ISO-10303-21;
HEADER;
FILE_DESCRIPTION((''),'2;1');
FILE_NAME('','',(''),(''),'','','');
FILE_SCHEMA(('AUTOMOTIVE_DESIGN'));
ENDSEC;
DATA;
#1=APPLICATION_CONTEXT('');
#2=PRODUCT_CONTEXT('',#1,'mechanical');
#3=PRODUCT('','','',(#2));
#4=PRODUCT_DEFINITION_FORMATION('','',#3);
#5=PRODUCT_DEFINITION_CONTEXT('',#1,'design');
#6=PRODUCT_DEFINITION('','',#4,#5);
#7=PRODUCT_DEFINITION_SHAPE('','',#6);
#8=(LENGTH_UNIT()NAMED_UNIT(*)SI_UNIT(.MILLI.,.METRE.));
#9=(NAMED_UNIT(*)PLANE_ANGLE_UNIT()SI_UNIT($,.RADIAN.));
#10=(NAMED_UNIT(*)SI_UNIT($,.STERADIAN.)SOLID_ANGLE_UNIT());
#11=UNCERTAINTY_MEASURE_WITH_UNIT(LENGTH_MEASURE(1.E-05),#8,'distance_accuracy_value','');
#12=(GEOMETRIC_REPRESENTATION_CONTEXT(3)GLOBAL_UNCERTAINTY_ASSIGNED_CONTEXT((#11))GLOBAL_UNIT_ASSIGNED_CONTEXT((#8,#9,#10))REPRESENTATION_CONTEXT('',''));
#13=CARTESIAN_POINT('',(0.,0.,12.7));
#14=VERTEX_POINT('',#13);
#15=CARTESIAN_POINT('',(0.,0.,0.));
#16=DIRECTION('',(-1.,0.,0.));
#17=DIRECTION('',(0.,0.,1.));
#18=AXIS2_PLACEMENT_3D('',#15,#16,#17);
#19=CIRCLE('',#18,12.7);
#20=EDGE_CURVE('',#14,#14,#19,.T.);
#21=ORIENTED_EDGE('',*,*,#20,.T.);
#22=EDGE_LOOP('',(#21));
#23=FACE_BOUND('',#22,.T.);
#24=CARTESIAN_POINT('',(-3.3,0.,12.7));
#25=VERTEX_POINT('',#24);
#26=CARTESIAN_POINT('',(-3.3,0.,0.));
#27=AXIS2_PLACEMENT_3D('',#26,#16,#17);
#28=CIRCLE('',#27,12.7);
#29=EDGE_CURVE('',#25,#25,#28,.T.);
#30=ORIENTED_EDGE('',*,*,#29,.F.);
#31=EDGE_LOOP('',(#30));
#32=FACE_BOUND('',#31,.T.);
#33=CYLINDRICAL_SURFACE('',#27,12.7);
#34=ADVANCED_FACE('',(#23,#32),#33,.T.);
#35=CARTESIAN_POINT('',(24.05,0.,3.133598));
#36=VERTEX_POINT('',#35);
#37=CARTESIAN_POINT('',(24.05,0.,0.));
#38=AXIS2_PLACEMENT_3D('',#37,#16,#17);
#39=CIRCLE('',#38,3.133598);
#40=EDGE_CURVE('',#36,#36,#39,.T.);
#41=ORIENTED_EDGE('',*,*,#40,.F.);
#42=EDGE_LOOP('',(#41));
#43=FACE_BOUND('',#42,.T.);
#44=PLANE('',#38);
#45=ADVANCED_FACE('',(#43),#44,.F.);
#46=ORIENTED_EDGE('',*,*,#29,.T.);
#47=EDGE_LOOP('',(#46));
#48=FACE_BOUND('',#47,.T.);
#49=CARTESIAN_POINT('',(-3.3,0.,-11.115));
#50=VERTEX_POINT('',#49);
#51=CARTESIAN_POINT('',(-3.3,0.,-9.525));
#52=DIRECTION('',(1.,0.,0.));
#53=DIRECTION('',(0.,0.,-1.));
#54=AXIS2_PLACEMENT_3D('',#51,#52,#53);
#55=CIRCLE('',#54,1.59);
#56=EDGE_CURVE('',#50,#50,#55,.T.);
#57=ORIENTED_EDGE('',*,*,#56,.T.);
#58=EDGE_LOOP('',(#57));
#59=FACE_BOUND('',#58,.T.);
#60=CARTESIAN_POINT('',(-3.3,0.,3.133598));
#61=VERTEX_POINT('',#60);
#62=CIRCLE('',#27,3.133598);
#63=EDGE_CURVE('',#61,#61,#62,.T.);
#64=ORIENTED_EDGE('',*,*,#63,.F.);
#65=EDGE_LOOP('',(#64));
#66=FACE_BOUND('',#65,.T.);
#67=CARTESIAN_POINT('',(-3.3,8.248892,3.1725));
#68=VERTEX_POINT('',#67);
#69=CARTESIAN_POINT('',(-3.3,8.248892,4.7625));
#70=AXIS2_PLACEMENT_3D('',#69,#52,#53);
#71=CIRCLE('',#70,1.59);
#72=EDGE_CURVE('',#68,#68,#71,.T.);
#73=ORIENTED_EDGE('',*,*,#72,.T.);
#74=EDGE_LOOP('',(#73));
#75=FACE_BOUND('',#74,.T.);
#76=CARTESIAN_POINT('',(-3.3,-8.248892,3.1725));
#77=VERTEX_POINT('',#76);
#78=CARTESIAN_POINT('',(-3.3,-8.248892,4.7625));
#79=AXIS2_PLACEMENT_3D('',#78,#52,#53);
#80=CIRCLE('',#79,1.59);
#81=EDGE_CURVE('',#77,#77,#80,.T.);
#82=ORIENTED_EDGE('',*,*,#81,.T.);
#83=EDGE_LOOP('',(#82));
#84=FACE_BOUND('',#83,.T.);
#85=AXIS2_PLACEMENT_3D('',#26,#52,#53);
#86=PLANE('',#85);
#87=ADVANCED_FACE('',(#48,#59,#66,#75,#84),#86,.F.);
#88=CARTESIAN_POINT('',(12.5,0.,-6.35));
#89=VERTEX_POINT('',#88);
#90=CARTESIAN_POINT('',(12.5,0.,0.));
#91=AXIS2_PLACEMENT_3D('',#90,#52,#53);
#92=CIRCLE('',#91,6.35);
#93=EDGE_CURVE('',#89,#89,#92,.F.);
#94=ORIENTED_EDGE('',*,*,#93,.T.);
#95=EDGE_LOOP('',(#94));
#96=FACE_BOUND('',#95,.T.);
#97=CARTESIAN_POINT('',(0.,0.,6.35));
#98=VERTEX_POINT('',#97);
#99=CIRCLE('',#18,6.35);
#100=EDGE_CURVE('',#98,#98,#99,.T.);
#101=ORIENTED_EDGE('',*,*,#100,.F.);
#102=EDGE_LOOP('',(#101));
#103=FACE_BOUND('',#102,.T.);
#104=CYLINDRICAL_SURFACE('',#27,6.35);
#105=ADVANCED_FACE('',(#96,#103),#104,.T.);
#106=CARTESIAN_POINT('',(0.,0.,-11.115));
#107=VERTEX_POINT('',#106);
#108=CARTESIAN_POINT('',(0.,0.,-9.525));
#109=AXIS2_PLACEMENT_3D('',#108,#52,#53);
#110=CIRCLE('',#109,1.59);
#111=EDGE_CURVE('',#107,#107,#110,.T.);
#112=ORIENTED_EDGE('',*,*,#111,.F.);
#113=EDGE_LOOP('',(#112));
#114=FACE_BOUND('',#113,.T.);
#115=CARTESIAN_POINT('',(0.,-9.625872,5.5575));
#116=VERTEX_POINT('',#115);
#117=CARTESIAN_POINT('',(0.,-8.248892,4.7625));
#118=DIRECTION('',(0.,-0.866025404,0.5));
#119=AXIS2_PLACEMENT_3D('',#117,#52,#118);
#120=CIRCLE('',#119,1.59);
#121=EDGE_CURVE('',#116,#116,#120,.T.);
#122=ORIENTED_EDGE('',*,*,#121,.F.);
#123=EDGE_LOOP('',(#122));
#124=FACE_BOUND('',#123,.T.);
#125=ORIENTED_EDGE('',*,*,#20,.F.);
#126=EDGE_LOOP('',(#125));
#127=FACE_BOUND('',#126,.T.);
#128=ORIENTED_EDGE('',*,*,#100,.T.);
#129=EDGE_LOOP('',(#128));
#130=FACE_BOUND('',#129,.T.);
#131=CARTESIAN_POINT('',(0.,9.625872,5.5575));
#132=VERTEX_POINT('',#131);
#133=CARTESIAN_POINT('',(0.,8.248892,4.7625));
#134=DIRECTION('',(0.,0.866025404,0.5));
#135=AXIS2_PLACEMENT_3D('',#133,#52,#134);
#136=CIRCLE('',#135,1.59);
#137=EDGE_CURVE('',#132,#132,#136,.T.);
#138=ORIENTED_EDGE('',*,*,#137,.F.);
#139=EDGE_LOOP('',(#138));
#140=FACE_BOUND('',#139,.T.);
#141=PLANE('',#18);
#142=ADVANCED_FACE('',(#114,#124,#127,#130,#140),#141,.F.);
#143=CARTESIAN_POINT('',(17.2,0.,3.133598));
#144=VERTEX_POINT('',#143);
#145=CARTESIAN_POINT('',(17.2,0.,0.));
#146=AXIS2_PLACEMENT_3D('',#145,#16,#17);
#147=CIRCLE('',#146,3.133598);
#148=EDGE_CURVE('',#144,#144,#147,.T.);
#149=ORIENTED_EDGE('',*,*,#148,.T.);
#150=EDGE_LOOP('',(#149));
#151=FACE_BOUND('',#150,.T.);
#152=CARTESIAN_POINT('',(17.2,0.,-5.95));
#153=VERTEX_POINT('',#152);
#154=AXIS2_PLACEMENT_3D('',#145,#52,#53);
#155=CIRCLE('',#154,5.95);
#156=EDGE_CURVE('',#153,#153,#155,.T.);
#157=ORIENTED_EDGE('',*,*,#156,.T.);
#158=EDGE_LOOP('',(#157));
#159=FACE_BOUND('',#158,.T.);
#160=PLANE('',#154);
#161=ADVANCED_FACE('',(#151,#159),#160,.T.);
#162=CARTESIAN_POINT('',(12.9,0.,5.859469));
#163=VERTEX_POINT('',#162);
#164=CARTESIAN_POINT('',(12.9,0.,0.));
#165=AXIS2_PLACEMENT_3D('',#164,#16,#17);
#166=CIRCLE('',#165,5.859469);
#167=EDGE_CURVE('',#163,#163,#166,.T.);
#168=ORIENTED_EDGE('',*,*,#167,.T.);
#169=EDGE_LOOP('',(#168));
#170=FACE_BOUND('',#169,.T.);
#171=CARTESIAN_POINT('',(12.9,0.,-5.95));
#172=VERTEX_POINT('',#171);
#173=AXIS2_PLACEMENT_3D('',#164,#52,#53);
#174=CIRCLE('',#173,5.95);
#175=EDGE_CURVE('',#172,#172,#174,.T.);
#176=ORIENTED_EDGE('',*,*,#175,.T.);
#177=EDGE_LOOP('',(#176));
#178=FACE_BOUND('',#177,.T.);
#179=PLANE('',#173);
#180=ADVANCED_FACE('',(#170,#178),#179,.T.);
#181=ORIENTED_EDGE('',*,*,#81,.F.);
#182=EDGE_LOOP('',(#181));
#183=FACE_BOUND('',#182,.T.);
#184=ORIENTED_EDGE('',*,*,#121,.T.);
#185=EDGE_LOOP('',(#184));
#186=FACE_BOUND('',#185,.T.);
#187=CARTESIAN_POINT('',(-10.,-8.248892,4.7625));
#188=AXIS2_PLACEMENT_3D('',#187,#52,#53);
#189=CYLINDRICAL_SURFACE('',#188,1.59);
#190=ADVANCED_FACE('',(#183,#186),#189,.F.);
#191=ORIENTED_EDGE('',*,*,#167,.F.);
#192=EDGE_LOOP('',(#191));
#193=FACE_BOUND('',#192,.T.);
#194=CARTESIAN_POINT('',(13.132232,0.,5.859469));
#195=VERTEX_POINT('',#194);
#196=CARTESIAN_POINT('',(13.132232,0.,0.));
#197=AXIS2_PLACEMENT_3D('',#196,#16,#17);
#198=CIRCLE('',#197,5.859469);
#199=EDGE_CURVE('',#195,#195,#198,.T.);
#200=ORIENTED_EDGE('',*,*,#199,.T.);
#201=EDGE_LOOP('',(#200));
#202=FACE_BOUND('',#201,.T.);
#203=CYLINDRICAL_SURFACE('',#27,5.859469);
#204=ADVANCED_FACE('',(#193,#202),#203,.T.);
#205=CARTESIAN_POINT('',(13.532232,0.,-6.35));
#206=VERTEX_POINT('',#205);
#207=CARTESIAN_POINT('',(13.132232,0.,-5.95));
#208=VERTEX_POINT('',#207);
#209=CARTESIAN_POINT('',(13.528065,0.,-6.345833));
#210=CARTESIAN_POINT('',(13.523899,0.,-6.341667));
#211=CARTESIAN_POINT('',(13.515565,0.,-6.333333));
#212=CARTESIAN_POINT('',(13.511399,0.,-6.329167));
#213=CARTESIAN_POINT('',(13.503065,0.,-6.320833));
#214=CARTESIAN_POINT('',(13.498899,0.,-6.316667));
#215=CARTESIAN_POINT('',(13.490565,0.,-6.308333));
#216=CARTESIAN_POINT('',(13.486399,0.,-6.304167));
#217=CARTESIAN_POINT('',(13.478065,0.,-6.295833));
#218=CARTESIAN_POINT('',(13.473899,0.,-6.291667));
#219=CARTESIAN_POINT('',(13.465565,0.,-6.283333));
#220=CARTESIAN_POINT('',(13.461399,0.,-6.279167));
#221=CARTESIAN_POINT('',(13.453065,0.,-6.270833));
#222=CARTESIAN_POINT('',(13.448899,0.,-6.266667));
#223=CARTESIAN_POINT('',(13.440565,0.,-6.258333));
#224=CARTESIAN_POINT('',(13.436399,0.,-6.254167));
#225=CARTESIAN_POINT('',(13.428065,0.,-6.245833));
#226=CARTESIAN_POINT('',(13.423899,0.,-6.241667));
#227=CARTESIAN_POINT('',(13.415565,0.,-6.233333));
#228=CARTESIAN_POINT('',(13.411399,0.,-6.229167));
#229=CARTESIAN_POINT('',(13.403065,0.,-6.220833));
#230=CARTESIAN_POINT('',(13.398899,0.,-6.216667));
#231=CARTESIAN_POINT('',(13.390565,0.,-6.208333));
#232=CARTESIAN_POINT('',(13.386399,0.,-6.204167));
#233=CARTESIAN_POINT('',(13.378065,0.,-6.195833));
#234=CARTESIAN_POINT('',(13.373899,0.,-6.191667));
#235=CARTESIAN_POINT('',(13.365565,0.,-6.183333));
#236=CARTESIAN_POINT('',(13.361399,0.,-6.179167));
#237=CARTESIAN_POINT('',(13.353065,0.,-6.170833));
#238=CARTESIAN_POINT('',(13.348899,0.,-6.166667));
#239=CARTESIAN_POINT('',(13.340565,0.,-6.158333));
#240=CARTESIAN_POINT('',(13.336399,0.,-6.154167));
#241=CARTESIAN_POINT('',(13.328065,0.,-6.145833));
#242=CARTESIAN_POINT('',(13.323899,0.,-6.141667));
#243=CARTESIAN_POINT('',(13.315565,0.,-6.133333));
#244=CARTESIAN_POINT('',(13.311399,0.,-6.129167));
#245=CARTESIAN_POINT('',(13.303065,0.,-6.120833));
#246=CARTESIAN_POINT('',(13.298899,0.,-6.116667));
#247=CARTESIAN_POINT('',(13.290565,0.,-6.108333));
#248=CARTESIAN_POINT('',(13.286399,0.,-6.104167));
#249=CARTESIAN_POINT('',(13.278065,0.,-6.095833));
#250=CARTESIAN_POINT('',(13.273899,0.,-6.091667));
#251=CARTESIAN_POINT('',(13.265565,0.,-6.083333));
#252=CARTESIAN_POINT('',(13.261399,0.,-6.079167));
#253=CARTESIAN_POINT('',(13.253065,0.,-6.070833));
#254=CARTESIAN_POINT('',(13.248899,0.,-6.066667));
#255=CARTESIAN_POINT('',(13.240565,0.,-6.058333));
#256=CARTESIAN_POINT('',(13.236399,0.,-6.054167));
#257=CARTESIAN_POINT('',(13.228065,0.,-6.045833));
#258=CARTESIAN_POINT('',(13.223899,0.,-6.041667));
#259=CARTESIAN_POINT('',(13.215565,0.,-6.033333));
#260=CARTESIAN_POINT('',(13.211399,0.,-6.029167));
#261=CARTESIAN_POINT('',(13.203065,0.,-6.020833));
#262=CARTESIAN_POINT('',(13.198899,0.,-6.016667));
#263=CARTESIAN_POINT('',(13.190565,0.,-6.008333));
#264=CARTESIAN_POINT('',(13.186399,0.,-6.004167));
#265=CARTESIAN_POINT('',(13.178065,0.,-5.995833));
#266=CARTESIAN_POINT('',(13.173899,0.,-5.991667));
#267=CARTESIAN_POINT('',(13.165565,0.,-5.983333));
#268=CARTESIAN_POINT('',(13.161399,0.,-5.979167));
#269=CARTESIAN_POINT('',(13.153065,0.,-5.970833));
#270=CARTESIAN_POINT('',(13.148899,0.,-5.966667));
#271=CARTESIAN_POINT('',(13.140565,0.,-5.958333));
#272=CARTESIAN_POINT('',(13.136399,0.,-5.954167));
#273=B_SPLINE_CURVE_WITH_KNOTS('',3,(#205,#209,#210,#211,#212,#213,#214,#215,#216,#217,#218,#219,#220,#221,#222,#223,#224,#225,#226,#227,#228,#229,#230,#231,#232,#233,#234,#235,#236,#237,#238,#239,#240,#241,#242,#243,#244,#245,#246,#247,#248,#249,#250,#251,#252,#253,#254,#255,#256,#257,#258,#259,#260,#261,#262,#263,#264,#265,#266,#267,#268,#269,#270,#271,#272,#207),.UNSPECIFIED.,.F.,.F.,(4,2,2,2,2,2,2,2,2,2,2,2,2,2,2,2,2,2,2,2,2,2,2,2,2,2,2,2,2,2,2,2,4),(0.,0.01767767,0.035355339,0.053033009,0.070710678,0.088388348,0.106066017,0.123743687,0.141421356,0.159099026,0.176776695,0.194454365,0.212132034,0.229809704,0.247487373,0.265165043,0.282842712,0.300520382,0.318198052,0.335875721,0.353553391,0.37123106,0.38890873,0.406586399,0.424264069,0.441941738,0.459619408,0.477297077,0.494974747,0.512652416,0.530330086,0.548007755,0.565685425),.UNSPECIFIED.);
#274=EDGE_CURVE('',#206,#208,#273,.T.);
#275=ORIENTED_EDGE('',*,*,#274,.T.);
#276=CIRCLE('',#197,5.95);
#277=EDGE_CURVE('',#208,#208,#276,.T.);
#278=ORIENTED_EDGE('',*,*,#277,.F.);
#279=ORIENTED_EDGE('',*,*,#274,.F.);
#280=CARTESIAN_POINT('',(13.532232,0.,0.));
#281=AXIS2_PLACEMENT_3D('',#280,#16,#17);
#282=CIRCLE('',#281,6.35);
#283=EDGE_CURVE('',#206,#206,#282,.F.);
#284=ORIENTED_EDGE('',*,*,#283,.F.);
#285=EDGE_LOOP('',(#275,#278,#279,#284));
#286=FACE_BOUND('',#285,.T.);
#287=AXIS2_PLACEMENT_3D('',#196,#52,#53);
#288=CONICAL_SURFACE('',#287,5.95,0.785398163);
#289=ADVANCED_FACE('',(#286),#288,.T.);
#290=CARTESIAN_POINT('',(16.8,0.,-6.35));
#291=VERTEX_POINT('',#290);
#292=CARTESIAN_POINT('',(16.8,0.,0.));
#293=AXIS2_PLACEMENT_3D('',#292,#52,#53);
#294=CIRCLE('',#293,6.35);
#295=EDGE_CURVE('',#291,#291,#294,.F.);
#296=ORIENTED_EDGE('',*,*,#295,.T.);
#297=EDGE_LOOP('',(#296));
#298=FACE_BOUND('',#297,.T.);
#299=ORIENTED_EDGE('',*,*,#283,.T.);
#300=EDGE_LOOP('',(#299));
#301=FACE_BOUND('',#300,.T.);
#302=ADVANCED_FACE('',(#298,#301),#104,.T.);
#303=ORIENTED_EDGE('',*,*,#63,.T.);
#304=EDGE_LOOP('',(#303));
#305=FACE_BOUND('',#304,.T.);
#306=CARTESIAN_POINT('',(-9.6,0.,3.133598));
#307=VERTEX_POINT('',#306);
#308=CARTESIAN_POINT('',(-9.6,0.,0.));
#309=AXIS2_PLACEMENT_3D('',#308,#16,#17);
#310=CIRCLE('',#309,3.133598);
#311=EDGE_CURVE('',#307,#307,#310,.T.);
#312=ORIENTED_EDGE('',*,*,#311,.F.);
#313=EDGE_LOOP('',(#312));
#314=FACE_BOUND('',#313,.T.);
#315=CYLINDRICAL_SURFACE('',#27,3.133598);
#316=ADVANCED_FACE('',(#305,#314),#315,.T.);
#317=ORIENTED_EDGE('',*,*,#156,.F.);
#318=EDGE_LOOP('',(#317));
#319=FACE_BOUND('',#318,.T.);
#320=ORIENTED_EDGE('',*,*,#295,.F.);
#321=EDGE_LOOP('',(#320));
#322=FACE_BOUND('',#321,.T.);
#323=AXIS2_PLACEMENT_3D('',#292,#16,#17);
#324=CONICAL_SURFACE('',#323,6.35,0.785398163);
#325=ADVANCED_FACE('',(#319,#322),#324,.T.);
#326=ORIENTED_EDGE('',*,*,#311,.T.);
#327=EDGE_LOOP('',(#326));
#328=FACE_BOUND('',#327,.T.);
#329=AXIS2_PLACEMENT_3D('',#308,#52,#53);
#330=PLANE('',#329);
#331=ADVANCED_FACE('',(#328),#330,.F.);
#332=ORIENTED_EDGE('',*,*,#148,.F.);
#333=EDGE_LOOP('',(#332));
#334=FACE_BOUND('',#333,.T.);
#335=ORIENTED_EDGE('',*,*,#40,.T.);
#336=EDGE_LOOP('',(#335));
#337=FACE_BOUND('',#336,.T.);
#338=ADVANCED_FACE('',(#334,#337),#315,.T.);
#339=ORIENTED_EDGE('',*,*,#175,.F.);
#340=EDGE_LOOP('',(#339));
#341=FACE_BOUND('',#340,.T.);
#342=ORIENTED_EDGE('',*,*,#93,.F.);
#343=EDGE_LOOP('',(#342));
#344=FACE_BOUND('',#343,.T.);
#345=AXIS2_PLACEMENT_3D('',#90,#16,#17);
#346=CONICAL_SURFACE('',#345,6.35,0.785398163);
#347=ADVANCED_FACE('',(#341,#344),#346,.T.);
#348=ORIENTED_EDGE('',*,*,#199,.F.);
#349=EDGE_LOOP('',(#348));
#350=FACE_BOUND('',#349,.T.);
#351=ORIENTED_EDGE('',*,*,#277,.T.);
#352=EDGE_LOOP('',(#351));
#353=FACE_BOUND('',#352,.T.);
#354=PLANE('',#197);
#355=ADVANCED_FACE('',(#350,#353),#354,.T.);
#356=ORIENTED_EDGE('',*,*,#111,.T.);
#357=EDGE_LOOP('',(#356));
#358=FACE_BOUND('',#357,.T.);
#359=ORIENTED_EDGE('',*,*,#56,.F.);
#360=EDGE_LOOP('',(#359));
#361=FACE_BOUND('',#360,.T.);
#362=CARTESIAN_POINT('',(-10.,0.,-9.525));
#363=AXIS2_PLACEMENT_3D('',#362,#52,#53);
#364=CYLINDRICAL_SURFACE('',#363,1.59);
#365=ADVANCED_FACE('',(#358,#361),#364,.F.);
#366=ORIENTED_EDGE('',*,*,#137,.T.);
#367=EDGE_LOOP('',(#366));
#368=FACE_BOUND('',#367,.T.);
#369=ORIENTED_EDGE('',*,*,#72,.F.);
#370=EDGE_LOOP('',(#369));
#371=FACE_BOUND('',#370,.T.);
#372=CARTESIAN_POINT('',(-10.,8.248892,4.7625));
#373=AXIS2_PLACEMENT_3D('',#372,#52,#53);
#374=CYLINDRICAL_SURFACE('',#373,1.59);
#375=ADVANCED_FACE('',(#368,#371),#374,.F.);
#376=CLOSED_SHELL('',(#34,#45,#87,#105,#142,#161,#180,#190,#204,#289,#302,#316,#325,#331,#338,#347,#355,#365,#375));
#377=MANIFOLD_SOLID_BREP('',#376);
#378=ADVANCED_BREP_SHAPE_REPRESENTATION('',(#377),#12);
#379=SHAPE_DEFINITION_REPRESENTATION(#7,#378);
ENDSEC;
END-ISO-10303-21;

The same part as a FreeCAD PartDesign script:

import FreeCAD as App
import Part
import Sketcher
from FreeCAD import Vector


def edges_at(feature, points):
    """Names of the edges that pass closest to the given points."""
    edges = feature.Shape.Edges
    near = lambda p: min(range(len(edges)), key=lambda i: edges[i].distToShape(Part.Vertex(*p))[0])
    return sorted({f"Edge{near(p) + 1}" for p in points})

doc = App.newDocument("Part")
body = doc.addObject("PartDesign::Body", "Body")

# Sketch on XY plane
sketch1 = doc.addObject("Sketcher::SketchObject", "Sketch")
body.addObject(sketch1)
sketch1.AttachmentSupport = (doc.XY_Plane, [""])
sketch1.MapMode = "FlatFace"
sketch1.addGeometry([
    Part.LineSegment(Vector(-9.6, 3.133598, 0), Vector(-9.6, 0, 0)),  # 0
    Part.LineSegment(Vector(-9.6, 0, 0), Vector(24.05, 0, 0)),  # 1
    Part.LineSegment(Vector(24.05, 0, 0), Vector(24.05, 3.133598, 0)),  # 2
    Part.LineSegment(Vector(24.05, 3.133598, 0), Vector(17.2, 3.133598, 0)),  # 3
    Part.LineSegment(Vector(17.2, 3.133598, 0), Vector(17.2, 6.35, 0)),  # 4
    Part.LineSegment(Vector(17.2, 6.35, 0), Vector(13.132232, 6.35, 0)),  # 5
    Part.LineSegment(Vector(13.132232, 6.35, 0), Vector(13.132232, 5.859469, 0)),  # 6
    Part.LineSegment(Vector(13.132232, 5.859469, 0), Vector(12.9, 5.859469, 0)),  # 7
    Part.LineSegment(Vector(12.9, 5.859469, 0), Vector(12.9, 6.35, 0)),  # 8
    Part.LineSegment(Vector(12.9, 6.35, 0), Vector(0, 6.35, 0)),  # 9
    Part.LineSegment(Vector(0, 6.35, 0), Vector(0, 12.7, 0)),  # 10
    Part.LineSegment(Vector(0, 12.7, 0), Vector(-3.3, 12.7, 0)),  # 11
    Part.LineSegment(Vector(-3.3, 12.7, 0), Vector(-3.3, 3.133598, 0)),  # 12
    Part.LineSegment(Vector(-3.3, 3.133598, 0), Vector(-9.6, 3.133598, 0)),  # 13
], False)
sketch1.addConstraint([
    Sketcher.Constraint("Coincident", 0, 2, 1, 1),
    Sketcher.Constraint("Coincident", 1, 2, 2, 1),
    Sketcher.Constraint("Coincident", 2, 2, 3, 1),
    Sketcher.Constraint("Coincident", 3, 2, 4, 1),
    Sketcher.Constraint("Coincident", 4, 2, 5, 1),
    Sketcher.Constraint("Coincident", 5, 2, 6, 1),
    Sketcher.Constraint("Coincident", 6, 2, 7, 1),
    Sketcher.Constraint("Coincident", 7, 2, 8, 1),
    Sketcher.Constraint("Coincident", 8, 2, 9, 1),
    Sketcher.Constraint("Coincident", 9, 2, 10, 1),
    Sketcher.Constraint("Coincident", 10, 2, 11, 1),
    Sketcher.Constraint("Coincident", 11, 2, 12, 1),
    Sketcher.Constraint("Coincident", 12, 2, 13, 1),
    Sketcher.Constraint("Coincident", 13, 2, 0, 1),
    Sketcher.Constraint("Vertical", 0),
    Sketcher.Constraint("Horizontal", 1),
    Sketcher.Constraint("Vertical", 2),
    Sketcher.Constraint("Horizontal", 3),
    Sketcher.Constraint("Vertical", 4),
    Sketcher.Constraint("Horizontal", 5),
    Sketcher.Constraint("Vertical", 6),
    Sketcher.Constraint("Horizontal", 7),
    Sketcher.Constraint("Vertical", 8),
    Sketcher.Constraint("Horizontal", 9),
    Sketcher.Constraint("Vertical", 10),
    Sketcher.Constraint("Horizontal", 11),
    Sketcher.Constraint("Vertical", 12),
    Sketcher.Constraint("Horizontal", 13),
    Sketcher.Constraint("PointOnObject", 0, 2, -1),
    Sketcher.Constraint("PointOnObject", 9, 2, -2),
    Sketcher.Constraint("Horizontal", 5, 2, 8, 2),
    Sketcher.Constraint("Horizontal", 3, 2, 12, 2),
    Sketcher.Constraint("DistanceX", 9, 2, 9, 1, 12.9),
    Sketcher.Constraint("DistanceX", 11, 2, 11, 1, 3.3),
    Sketcher.Constraint("DistanceX", 13, 2, 13, 1, 6.3),
    Sketcher.Constraint("DistanceX", 1, 1, 1, 2, 33.65),
    Sketcher.Constraint("DistanceX", 3, 2, 3, 1, 6.85),
    Sketcher.Constraint("DistanceY", 10, 1, 10, 2, 6.35),
    Sketcher.Constraint("DistanceY", -1, 1, 10, 2, 12.7),
    Sketcher.Constraint("DistanceX", 5, 2, 5, 1, 4.067768),
    Sketcher.Constraint("DistanceY", 6, 2, 6, 1, 0.490531),
    Sketcher.Constraint("DistanceY", 0, 2, 0, 1, 3.133598),
])
revolution = doc.addObject("PartDesign::Revolution", "Revolution")
body.addObject(revolution)
revolution.Profile = sketch1
revolution.ReferenceAxis = (sketch1, ["H_Axis"])
revolution.Angle = 360

# Sketch on YZ plane
sketch2 = doc.addObject("Sketcher::SketchObject", "Sketch001")
body.addObject(sketch2)
sketch2.AttachmentSupport = (doc.YZ_Plane, [""])
sketch2.MapMode = "FlatFace"
sketch2.addGeometry(Part.Circle(Vector(0, -9.525, 0), Vector(0, 0, 1), 1.59), False)
sketch2.addConstraint([
    Sketcher.Constraint("PointOnObject", 0, 3, -2),
    Sketcher.Constraint("Diameter", 0, 3.18),
    Sketcher.Constraint("DistanceY", 0, 3, -1, 1, 9.525),
])
pocket1 = doc.addObject("PartDesign::Pocket", "Pocket")
body.addObject(pocket1)
pocket1.Profile = sketch2
pocket1.Length = 10
doc.recompute()

polarpattern = doc.addObject("PartDesign::PolarPattern", "PolarPattern")
body.addObject(polarpattern)
polarpattern.Originals = [pocket1]
polarpattern.Axis = (doc.X_Axis, [""])
polarpattern.Angle = 360
polarpattern.Occurrences = 3
body.Tip = polarpattern
doc.recompute()

chamfer = doc.addObject("PartDesign::Chamfer", "Chamfer")
body.addObject(chamfer)
chamfer.Base = (polarpattern, edges_at(polarpattern, [(12.9, 0, -6.35), (13.132, 0, -6.35), (17.2, 0, -6.35)]))
chamfer.Size = 0.4

doc.recompute()
